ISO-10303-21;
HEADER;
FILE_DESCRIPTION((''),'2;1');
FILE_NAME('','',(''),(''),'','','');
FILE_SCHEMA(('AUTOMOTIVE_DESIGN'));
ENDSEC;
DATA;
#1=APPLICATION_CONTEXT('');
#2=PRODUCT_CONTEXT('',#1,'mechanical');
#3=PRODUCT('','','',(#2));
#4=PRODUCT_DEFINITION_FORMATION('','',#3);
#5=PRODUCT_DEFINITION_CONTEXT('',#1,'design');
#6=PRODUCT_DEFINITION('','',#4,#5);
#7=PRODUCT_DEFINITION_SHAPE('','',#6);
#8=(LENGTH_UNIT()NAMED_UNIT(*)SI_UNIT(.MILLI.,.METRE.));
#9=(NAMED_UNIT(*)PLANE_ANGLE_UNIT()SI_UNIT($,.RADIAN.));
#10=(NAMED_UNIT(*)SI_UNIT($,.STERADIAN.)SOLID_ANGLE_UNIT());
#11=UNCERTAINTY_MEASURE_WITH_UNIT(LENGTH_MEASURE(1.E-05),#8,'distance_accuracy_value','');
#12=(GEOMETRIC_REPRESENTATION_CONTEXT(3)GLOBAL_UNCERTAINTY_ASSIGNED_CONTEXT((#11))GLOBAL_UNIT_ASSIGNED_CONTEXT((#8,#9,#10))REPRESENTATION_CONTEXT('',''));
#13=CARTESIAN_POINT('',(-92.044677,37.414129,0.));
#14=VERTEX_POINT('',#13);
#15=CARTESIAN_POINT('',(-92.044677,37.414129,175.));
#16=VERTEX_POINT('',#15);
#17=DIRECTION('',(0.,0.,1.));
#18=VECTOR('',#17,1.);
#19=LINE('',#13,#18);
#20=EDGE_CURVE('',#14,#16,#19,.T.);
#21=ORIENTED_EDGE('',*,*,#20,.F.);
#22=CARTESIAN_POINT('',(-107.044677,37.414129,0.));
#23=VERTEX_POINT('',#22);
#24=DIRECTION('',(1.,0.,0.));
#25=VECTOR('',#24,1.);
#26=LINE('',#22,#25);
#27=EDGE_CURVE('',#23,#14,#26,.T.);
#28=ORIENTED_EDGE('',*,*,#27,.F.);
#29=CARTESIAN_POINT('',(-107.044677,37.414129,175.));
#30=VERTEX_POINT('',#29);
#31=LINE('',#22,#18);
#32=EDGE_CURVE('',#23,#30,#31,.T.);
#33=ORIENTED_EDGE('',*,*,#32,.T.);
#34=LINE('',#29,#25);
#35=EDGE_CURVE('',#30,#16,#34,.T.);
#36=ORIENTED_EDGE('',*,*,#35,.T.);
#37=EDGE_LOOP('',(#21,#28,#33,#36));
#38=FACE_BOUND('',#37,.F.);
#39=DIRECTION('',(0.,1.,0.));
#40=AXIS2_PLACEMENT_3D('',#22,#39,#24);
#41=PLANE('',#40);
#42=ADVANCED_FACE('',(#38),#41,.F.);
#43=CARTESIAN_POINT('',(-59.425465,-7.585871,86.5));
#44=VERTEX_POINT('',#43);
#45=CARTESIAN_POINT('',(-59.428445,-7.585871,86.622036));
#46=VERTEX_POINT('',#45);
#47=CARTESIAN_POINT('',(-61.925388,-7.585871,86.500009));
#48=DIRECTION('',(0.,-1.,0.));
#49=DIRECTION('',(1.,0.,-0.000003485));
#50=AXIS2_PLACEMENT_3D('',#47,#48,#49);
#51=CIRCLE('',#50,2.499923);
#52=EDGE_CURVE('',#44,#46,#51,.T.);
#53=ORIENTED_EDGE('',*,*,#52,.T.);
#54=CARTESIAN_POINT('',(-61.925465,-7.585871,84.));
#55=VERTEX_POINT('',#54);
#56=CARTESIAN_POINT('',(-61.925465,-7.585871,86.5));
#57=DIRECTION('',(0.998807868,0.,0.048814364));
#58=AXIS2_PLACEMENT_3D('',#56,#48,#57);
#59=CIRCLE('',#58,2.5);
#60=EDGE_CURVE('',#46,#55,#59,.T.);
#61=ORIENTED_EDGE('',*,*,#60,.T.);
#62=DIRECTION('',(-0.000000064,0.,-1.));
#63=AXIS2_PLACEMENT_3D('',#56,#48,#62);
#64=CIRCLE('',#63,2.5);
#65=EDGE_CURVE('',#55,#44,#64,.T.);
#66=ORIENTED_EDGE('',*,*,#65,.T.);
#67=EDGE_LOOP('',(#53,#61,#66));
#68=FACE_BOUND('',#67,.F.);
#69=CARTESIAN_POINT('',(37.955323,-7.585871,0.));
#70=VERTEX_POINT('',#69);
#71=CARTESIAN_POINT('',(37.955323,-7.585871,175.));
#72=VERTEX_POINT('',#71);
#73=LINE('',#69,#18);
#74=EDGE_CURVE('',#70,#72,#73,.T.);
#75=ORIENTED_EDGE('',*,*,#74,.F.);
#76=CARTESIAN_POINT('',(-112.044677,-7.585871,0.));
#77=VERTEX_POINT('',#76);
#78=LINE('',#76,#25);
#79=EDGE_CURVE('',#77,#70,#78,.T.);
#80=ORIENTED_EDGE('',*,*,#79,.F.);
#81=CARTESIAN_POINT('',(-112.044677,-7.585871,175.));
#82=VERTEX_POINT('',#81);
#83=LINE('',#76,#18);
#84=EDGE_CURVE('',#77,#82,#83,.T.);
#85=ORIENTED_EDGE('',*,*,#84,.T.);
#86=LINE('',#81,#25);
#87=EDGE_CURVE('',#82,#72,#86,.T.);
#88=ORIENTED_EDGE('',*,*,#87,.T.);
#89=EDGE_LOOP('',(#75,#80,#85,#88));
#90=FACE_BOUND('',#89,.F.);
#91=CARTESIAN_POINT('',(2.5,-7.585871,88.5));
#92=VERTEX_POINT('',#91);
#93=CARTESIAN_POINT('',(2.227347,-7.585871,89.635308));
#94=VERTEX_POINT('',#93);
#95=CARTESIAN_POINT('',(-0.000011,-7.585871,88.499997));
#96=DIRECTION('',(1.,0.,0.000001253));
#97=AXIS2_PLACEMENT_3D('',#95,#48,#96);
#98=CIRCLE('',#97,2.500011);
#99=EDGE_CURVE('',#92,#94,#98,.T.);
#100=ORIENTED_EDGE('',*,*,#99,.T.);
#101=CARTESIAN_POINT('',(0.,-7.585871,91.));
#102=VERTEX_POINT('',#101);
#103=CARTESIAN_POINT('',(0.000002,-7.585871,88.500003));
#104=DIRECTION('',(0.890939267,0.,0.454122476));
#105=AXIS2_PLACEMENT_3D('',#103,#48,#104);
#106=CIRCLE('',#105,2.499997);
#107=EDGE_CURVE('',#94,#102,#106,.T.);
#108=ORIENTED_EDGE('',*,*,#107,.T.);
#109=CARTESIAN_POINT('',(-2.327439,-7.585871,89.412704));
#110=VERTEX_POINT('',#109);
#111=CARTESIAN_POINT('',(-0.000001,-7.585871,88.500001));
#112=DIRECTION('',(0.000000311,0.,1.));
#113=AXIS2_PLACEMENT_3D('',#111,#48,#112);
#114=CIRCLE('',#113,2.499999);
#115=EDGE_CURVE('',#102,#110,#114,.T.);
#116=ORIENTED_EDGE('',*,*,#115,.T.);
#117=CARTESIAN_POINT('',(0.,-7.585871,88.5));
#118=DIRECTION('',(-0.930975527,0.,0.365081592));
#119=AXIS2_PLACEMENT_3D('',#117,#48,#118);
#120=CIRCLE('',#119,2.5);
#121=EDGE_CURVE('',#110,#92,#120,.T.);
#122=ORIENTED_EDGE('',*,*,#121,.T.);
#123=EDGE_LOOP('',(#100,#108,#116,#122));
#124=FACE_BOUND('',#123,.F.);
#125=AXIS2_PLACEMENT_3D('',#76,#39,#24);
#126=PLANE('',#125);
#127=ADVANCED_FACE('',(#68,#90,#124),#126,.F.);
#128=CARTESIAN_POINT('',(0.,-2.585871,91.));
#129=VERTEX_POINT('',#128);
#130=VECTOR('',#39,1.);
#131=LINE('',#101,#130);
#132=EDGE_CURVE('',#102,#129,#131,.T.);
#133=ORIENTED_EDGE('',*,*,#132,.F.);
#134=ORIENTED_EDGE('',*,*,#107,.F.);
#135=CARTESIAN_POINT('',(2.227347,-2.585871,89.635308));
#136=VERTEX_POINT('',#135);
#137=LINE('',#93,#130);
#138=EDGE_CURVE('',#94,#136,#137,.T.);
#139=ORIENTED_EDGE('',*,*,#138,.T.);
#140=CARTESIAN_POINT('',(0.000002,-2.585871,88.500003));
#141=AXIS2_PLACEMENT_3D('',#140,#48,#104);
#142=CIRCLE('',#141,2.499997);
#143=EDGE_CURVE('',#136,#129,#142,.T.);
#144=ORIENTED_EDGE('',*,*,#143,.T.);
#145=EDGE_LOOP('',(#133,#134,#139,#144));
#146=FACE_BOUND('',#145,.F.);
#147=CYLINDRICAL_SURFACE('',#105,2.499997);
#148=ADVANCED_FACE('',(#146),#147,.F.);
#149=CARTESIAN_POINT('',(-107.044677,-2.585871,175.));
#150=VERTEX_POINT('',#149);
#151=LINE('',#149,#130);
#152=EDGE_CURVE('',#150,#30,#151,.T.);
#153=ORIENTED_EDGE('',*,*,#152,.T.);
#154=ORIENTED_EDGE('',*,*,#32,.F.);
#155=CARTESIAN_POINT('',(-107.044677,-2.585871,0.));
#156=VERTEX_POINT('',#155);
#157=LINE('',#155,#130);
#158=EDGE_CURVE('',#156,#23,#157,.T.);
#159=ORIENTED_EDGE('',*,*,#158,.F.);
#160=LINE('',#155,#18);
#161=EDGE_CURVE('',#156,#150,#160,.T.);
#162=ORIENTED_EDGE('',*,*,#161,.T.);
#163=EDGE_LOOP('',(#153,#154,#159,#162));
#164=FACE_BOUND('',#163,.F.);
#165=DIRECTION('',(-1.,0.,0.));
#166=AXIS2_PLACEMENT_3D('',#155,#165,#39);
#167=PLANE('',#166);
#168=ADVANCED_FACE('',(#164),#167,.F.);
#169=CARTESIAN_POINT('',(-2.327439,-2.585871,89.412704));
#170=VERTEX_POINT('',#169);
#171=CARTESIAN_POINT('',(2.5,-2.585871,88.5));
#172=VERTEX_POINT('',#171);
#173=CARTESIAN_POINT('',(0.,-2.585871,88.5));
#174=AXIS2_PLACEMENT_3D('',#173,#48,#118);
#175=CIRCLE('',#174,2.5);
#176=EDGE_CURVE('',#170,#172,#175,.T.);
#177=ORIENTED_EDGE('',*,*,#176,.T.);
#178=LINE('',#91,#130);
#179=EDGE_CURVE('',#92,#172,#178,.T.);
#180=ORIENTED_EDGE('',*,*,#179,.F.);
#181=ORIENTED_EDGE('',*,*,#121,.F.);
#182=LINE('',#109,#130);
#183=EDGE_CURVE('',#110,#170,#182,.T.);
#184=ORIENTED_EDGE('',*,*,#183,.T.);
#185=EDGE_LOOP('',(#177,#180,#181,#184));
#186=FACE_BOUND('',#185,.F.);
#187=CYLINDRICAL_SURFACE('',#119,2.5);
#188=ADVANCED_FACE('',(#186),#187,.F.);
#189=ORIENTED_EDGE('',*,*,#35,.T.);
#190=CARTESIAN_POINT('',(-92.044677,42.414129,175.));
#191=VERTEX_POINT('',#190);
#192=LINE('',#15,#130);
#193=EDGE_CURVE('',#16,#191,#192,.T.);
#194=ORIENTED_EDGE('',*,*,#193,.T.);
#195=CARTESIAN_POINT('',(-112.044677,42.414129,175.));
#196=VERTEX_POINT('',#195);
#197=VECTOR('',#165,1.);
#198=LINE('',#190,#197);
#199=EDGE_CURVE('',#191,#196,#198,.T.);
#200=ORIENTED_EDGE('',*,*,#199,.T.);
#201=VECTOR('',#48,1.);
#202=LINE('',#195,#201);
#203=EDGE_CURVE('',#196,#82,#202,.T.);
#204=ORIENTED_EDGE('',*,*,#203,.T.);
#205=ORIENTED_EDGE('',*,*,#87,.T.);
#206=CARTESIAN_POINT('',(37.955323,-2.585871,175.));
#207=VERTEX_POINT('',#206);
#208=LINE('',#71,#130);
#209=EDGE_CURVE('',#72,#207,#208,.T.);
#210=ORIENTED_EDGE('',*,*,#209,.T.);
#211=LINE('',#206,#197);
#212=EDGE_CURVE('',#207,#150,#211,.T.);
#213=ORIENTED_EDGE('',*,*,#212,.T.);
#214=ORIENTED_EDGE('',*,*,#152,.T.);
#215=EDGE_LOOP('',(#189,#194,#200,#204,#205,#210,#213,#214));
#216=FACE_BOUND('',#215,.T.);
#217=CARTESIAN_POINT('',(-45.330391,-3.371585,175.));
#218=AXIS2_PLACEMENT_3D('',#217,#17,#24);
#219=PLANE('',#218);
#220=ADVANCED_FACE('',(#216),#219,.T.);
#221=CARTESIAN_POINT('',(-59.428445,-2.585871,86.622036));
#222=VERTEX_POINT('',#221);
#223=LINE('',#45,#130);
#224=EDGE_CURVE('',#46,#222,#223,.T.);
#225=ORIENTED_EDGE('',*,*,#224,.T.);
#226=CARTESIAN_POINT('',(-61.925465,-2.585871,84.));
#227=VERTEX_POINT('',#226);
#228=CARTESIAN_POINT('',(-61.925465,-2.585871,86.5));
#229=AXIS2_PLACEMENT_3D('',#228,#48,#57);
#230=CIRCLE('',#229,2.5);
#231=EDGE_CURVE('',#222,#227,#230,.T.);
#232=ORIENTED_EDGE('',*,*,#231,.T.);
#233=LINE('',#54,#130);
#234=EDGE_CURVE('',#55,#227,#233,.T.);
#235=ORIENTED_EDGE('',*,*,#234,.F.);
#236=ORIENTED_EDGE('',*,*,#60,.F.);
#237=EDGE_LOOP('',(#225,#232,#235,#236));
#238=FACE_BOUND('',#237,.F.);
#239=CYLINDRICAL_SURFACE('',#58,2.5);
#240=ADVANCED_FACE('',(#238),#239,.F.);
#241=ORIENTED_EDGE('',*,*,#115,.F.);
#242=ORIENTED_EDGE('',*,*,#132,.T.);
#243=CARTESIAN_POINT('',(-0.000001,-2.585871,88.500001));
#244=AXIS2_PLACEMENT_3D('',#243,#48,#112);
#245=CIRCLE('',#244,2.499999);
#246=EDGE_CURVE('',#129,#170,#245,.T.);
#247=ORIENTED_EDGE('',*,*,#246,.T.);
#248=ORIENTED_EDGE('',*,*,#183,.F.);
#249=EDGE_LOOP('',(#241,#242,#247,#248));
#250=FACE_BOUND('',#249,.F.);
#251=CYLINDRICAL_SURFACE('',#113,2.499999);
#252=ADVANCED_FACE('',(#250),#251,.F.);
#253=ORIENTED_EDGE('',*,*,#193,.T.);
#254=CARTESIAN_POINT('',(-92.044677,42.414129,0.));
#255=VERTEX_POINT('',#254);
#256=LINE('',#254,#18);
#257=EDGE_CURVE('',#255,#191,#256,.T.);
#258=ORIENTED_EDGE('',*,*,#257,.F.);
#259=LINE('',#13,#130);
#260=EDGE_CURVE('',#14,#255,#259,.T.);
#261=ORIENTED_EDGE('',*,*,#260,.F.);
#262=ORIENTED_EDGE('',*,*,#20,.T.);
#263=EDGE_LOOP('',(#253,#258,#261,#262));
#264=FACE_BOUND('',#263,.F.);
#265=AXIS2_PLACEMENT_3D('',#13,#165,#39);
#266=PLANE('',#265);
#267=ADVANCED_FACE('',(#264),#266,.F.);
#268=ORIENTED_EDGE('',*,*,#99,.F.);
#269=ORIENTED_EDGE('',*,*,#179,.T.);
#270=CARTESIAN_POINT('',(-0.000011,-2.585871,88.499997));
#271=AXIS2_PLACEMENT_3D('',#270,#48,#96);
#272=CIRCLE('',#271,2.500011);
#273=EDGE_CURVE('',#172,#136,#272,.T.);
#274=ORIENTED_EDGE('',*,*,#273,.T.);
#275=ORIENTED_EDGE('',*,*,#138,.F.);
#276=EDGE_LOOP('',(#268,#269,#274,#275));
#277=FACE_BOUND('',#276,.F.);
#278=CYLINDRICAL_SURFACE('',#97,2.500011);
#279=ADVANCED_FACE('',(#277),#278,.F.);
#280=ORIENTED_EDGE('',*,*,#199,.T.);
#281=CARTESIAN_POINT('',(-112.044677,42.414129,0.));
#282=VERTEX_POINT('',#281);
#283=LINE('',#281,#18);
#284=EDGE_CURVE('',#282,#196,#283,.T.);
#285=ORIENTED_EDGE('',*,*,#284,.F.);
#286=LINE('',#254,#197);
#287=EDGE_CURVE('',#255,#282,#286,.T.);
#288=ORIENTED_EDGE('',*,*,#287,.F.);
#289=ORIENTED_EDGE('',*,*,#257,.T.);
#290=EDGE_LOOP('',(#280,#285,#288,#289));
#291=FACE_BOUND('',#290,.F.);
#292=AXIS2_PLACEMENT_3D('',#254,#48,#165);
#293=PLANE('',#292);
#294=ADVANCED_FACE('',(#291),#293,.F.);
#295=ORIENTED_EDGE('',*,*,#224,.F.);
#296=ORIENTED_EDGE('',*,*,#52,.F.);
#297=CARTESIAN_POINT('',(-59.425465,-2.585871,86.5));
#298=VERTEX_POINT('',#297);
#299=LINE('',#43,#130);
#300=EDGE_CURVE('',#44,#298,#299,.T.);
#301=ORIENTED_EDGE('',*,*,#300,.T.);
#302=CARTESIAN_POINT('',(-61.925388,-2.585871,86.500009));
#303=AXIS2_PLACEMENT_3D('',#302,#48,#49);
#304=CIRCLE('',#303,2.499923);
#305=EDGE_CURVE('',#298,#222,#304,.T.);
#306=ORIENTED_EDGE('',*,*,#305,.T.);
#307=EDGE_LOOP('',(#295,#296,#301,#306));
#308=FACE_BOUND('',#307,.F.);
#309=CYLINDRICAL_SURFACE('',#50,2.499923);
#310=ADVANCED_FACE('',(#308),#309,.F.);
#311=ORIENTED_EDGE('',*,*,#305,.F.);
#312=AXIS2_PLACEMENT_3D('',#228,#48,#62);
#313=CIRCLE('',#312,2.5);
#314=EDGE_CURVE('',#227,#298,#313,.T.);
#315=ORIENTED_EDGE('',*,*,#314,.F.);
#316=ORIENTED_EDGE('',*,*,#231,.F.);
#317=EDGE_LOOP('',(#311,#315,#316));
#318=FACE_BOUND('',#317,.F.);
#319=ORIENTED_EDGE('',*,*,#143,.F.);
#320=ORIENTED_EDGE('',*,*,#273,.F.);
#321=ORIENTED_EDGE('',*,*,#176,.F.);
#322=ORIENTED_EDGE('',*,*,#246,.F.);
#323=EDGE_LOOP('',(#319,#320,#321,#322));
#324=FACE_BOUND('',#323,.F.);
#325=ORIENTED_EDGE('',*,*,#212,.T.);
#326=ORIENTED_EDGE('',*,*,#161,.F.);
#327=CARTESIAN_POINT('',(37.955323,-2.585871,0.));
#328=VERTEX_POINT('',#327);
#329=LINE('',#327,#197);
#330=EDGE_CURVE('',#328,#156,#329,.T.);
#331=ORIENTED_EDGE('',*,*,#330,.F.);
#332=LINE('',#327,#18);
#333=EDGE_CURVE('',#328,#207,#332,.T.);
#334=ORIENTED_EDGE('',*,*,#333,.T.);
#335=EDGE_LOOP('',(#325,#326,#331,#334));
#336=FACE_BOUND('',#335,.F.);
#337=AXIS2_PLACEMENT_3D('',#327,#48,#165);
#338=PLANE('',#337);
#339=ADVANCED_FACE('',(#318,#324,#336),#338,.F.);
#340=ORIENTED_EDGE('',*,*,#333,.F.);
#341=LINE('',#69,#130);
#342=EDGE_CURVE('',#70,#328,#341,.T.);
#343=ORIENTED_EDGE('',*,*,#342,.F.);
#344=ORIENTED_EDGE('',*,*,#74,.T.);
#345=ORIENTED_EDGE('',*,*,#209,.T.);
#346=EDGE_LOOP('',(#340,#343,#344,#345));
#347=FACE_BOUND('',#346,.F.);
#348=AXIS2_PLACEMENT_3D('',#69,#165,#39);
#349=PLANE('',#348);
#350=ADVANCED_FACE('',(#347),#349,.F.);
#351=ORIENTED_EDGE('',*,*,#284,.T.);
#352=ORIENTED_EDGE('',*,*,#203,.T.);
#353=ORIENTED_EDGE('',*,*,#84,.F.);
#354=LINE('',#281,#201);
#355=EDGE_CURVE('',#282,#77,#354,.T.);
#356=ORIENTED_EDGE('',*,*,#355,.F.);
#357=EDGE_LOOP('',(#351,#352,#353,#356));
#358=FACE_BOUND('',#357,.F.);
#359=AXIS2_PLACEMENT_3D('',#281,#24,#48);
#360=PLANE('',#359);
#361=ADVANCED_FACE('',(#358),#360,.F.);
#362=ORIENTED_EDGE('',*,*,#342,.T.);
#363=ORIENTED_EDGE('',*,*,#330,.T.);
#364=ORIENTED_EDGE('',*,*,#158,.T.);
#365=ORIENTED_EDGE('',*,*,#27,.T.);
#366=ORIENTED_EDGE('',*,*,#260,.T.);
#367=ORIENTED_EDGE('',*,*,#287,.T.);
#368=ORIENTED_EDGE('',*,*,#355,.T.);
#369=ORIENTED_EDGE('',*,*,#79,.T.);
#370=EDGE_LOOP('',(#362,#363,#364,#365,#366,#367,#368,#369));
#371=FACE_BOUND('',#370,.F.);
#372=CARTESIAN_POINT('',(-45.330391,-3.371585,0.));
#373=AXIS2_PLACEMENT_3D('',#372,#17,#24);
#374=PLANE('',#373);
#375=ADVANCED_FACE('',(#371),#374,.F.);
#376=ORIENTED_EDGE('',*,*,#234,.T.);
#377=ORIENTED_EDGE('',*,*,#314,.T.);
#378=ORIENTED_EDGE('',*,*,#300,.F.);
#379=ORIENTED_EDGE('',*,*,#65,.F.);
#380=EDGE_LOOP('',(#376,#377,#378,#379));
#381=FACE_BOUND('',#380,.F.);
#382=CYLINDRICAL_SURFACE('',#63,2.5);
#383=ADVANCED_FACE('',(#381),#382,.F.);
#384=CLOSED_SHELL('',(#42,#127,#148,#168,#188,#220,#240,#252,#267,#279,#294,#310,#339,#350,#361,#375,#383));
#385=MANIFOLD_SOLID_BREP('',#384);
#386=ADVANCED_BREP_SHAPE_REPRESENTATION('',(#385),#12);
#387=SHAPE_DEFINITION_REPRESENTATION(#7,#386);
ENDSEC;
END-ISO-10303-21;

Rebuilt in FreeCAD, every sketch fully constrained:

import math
import FreeCAD as App
import Part
import Sketcher

V = App.Vector

doc = App.newDocument("Part")
body = doc.addObject("PartDesign::Body", "Body")

# Sketch on XY plane
sketch1 = doc.addObject("Sketcher::SketchObject", "Sketch")
body.addObject(sketch1)
sketch1.AttachmentSupport = (doc.XY_Plane, [""])
sketch1.MapMode = "FlatFace"
sketch1.addGeometry(Part.LineSegment(V(-112, -8, 0), V(38, -8, 0)), False)
sketch1.addGeometry(Part.LineSegment(V(38, -8, 0), V(38, -3, 0)), False)
sketch1.addGeometry(Part.LineSegment(V(38, -3, 0), V(-107, -3, 0)), False)
sketch1.addGeometry(Part.LineSegment(V(-107, -3, 0), V(-107, 37, 0)), False)
sketch1.addGeometry(Part.LineSegment(V(-107, 37, 0), V(-92, 37, 0)), False)
sketch1.addGeometry(Part.LineSegment(V(-92, 37, 0), V(-92, 42, 0)), False)
sketch1.addGeometry(Part.LineSegment(V(-92, 42, 0), V(-112, 42, 0)), False)
sketch1.addGeometry(Part.LineSegment(V(-112, 42, 0), V(-112, -8, 0)), False)
sketch1.addConstraint(Sketcher.Constraint("Coincident", 0, 2, 1, 1))
sketch1.addConstraint(Sketcher.Constraint("Coincident", 1, 2, 2, 1))
sketch1.addConstraint(Sketcher.Constraint("Coincident", 2, 2, 3, 1))
sketch1.addConstraint(Sketcher.Constraint("Coincident", 3, 2, 4, 1))
sketch1.addConstraint(Sketcher.Constraint("Coincident", 4, 2, 5, 1))
sketch1.addConstraint(Sketcher.Constraint("Coincident", 5, 2, 6, 1))
sketch1.addConstraint(Sketcher.Constraint("Coincident", 6, 2, 7, 1))
sketch1.addConstraint(Sketcher.Constraint("Coincident", 7, 2, 0, 1))
sketch1.addConstraint(Sketcher.Constraint("Horizontal", 0))
sketch1.addConstraint(Sketcher.Constraint("Vertical", 1))
sketch1.addConstraint(Sketcher.Constraint("Horizontal", 2))
sketch1.addConstraint(Sketcher.Constraint("Vertical", 3))
sketch1.addConstraint(Sketcher.Constraint("Horizontal", 4))
sketch1.addConstraint(Sketcher.Constraint("Vertical", 5))
sketch1.addConstraint(Sketcher.Constraint("Horizontal", 6))
sketch1.addConstraint(Sketcher.Constraint("Vertical", 7))
sketch1.addConstraint(Sketcher.Constraint("Equal", 1, 5))
sketch1.addConstraint(Sketcher.Constraint("DistanceX", 0, 1, 0, 2, 150.0))
sketch1.addConstraint(Sketcher.Constraint("DistanceX", 2, 2, 2, 1, 145.0))
sketch1.addConstraint(Sketcher.Constraint("DistanceX", 4, 1, 4, 2, 15.0))
sketch1.addConstraint(Sketcher.Constraint("DistanceY", 1, 1, 1, 2, 5.0))
sketch1.addConstraint(Sketcher.Constraint("DistanceY", 3, 1, 3, 2, 40.0))
sketch1.addConstraint(Sketcher.Constraint("DistanceY", 0, 2, -1, 1, 7.585871))
sketch1.addConstraint(Sketcher.Constraint("DistanceX", -1, 1, 0, 2, 37.955323))
pad1 = doc.addObject("PartDesign::Pad", "Pad")
body.addObject(pad1)
pad1.Profile = sketch1
pad1.Length = 175

# Sketch on XZ plane
sketch2 = doc.addObject("Sketcher::SketchObject", "Sketch001")
body.addObject(sketch2)
sketch2.AttachmentSupport = (doc.XZ_Plane, [""])
sketch2.MapMode = "FlatFace"
sketch2.AttachmentOffset = App.Placement(V(0, 0, 7.585871), App.Rotation())
sketch2.addGeometry(Part.ArcOfCircle(Part.Circle(V(0, 88.5, 0), V(0, 0, 1), 2.5), math.radians(159), math.radians(360)), False)
sketch2.addGeometry(Part.LineSegment(V(2.5, 88.5, 0), V(0, 88.5, 0)), False)
sketch2.addGeometry(Part.LineSegment(V(0, 88.5, 0), V(0, 89.5, 0)), False)
sketch2.addGeometry(Part.LineSegment(V(0, 89.5, 0), V(-2.3, 89.4, 0)), False)
sketch2.addConstraint(Sketcher.Constraint("Coincident", 0, 2, 1, 1))
sketch2.addConstraint(Sketcher.Constraint("Coincident", 1, 2, 2, 1))
sketch2.addConstraint(Sketcher.Constraint("Coincident", 2, 2, 3, 1))
sketch2.addConstraint(Sketcher.Constraint("Coincident", 3, 2, 0, 1))
sketch2.addConstraint(Sketcher.Constraint("Horizontal", 1))
sketch2.addConstraint(Sketcher.Constraint("Vertical", 2))
sketch2.addConstraint(Sketcher.Constraint("Coincident", 1, 2, 0, 3))
sketch2.addConstraint(Sketcher.Constraint("PointOnObject", 0, 3, -2))
sketch2.addConstraint(Sketcher.Constraint("Radius", 0, 2.5))
sketch2.addConstraint(Sketcher.Constraint("DistanceY", -1, 1, 0, 3, 88.5))
sketch2.addConstraint(Sketcher.Constraint("DistanceY", 2, 1, 2, 2, 1.026452))
sketch2.addConstraint(Sketcher.Constraint("DistanceX", 3, 2, -1, 1, 2.327439))
pocket1 = doc.addObject("PartDesign::Pocket", "Pocket")
body.addObject(pocket1)
pocket1.Profile = sketch2
pocket1.Length = 25

# Sketch on XZ plane
sketch3 = doc.addObject("Sketcher::SketchObject", "Sketch002")
body.addObject(sketch3)
sketch3.AttachmentSupport = (doc.XZ_Plane, [""])
sketch3.MapMode = "FlatFace"
sketch3.AttachmentOffset = App.Placement(V(0, 0, 7.585871), App.Rotation())
sketch3.addGeometry(Part.ArcOfCircle(Part.Circle(V(-0.000011, 88.499997, 0), V(0, 0, 1), 2.500011), math.radians(0.000072), math.radians(27.008485)), False)
sketch3.addGeometry(Part.ArcOfCircle(Part.Circle(V(0.000002, 88.500003, 0), V(0, 0, 1), 2.499997), math.radians(27.008487), math.radians(90.000041)), False)
sketch3.addGeometry(Part.ArcOfCircle(Part.Circle(V(-0.000001, 88.500001, 0), V(0, 0, 1), 2.499999), math.radians(89.999982), math.radians(158.587409)), False)
sketch3.addGeometry(Part.ArcOfCircle(Part.Circle(V(0, 88.5, 0), V(0, 0, 1), 2.5), math.radians(158.587396), math.radians(360)), False)
sketch3.addGeometry(Part.ArcOfCircle(Part.Circle(V(-61.925388, 86.500009, 0), V(0, 0, 1), 2.499923), math.radians(-0.0002), math.radians(2.797858)), False)
sketch3.addGeometry(Part.ArcOfCircle(Part.Circle(V(-61.925465, 86.5, 0), V(0, 0, 1), 2.5), math.radians(2.797969), math.radians(269.999994)), False)
sketch3.addGeometry(Part.ArcOfCircle(Part.Circle(V(-61.925465, 86.5, 0), V(0, 0, 1), 2.5), math.radians(-90.000004), math.radians(0.000004)), False)
sketch3.addConstraint(Sketcher.Constraint("Coincident", 0, 2, 1, 1))
sketch3.addConstraint(Sketcher.Constraint("Coincident", 1, 2, 2, 1))
sketch3.addConstraint(Sketcher.Constraint("Coincident", 2, 2, 3, 1))
sketch3.addConstraint(Sketcher.Constraint("Coincident", 3, 2, 0, 1))
sketch3.addConstraint(Sketcher.Constraint("Coincident", 4, 2, 5, 1))
sketch3.addConstraint(Sketcher.Constraint("Coincident", 5, 2, 6, 1))
sketch3.addConstraint(Sketcher.Constraint("Coincident", 6, 2, 4, 1))
sketch3.addConstraint(Sketcher.Constraint("Coincident", 2, 3, 1, 3))
sketch3.addConstraint(Sketcher.Constraint("Coincident", 3, 3, 1, 3))
sketch3.addConstraint(Sketcher.Constraint("Coincident", 6, 3, 5, 3))
sketch3.addConstraint(Sketcher.Constraint("PointOnObject", 1, 3, -2))
sketch3.addConstraint(Sketcher.Constraint("PointOnObject", 1, 2, -2))
sketch3.addConstraint(Sketcher.Constraint("Radius", 2, 2.499999))
sketch3.addConstraint(Sketcher.Constraint("Radius", 5, 2.5))
sketch3.addConstraint(Sketcher.Constraint("DistanceY", -1, 1, 1, 2, 91.0))
sketch3.addConstraint(Sketcher.Constraint("DistanceY", -1, 1, 5, 2, 84.0))
sketch3.addConstraint(Sketcher.Constraint("DistanceY", -1, 1, 3, 2, 88.5))
sketch3.addConstraint(Sketcher.Constraint("DistanceY", -1, 1, 6, 2, 86.5))
sketch3.addConstraint(Sketcher.Constraint("DistanceX", 5, 2, 6, 2, 2.5))
sketch3.addConstraint(Sketcher.Constraint("Radius", 0, 2.500011))
sketch3.addConstraint(Sketcher.Constraint("Radius", 4, 2.499923))
sketch3.addConstraint(Sketcher.Constraint("DistanceY", 4, 3, 0, 2, 3.135299))
sketch3.addConstraint(Sketcher.Constraint("DistanceY", 1, 3, 2, 2, 0.912701))
sketch3.addConstraint(Sketcher.Constraint("DistanceX", 4, 3, 1, 3, 61.925389))
sketch3.addConstraint(Sketcher.Constraint("DistanceX", 5, 3, 4, 2, 2.49702))
pocket2 = doc.addObject("PartDesign::Pocket", "Pocket001")
body.addObject(pocket2)
pocket2.Profile = sketch3
pocket2.Length = 25

doc.recompute()
